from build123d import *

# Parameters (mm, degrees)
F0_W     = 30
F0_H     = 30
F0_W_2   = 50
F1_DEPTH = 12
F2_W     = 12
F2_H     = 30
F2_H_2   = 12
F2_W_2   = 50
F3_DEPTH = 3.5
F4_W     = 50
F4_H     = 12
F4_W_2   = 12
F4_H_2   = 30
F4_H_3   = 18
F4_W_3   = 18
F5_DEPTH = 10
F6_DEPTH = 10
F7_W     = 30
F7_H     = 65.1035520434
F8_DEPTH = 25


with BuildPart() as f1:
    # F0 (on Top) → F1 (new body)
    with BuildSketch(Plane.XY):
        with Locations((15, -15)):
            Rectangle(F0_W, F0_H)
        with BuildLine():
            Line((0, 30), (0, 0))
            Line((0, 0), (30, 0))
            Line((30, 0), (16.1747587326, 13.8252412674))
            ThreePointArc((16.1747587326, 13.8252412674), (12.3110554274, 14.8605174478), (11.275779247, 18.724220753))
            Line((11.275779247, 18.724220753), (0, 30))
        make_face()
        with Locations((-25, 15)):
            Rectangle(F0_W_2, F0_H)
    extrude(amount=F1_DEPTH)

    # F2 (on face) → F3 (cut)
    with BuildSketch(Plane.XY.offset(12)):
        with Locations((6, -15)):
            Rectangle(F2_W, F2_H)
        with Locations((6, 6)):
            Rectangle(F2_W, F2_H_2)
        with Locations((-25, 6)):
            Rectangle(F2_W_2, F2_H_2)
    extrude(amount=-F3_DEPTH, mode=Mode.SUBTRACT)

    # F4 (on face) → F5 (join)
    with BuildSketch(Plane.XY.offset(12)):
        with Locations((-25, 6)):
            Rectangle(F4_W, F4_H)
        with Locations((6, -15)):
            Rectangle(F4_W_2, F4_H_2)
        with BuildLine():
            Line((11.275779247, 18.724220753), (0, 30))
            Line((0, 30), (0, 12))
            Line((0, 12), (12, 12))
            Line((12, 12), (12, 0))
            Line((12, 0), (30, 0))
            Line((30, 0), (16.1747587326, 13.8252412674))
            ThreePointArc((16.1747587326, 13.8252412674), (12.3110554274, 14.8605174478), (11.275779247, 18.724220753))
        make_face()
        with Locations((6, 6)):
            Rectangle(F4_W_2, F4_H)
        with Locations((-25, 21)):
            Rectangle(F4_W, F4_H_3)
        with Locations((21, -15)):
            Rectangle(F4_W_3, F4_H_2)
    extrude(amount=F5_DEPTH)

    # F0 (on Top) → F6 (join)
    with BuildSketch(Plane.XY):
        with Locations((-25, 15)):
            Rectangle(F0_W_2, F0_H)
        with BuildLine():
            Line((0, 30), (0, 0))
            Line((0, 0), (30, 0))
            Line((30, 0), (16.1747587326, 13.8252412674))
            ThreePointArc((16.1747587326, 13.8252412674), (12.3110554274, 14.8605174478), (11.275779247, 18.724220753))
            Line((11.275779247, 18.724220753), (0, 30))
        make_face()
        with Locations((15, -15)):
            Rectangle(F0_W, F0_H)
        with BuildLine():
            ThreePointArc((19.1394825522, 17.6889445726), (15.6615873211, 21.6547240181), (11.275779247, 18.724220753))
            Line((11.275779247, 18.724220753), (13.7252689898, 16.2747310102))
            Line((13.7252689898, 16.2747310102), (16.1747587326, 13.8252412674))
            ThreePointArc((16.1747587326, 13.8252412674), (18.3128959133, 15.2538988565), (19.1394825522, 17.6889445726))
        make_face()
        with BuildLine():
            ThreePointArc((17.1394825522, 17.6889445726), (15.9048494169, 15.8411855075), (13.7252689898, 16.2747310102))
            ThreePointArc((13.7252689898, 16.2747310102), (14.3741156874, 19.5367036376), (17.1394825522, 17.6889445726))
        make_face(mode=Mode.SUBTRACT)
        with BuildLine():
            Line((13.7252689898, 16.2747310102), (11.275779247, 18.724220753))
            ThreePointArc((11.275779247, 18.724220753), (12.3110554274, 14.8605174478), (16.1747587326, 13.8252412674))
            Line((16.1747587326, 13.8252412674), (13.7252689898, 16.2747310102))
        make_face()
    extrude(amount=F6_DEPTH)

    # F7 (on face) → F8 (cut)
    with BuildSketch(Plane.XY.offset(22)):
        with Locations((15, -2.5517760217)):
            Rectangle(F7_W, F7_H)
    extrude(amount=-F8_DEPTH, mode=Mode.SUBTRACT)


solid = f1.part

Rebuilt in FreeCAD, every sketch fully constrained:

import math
import FreeCAD as App
import Part
import Sketcher
from FreeCAD import Vector
Q = App.Units.Quantity

doc = App.newDocument("Part")
params = doc.addObject("Spreadsheet::Sheet", "Params")
for row, (alias, value) in enumerate([
    ("sketch1_radius", "4 mm"),
    ("sketch1_width", "30 mm"),
    ("sketch1_width2", "50 mm"),
    ("pad1_length", "12 mm"),
    ("sketch2_width", "12 mm"),
    ("sketch2_width2", "62 mm"),
    ("sketch2_height", "42 mm"),
    ("pocket1_length", "3.5 mm"),
    ("sketch3_radius", "4 mm"),
    ("sketch3_width", "50 mm"),
    ("sketch3_width2", "30 mm"),
    ("pad2_length", "10 mm"),
    ("sketch4_radius", "4 mm"),
    ("sketch4_radius2", "2 mm"),
    ("sketch4_width", "50 mm"),
    ("sketch4_width2", "30 mm"),
    ("pad3_length", "10 mm"),
    ("sketch5_width", "30 mm"),
    ("pocket2_length", "25 mm"),
], start=1):
    params.set(f"A{row}", alias)
    params.set(f"B{row}", "=" + value)
    params.setAlias(f"B{row}", alias)

body = doc.addObject("PartDesign::Body", "Body")

# Sketch on XY plane
sketch1 = body.newObject("Sketcher::SketchObject", "Sketch")
sketch1.AttachmentSupport = (doc.getObject("XY_Plane"), [""])
sketch1.MapMode = "FlatFace"
sketch1.addGeometry([
    Part.LineSegment(Vector(0, -30, 0), Vector(30, -30, 0)),  # 0
    Part.LineSegment(Vector(30, -30, 0), Vector(30, 0, 0)),  # 1
    Part.LineSegment(Vector(30, 0, 0), Vector(16.2, 13.8, 0)),  # 2
    Part.ArcOfCircle(Part.Circle(Vector(15.1, 17.7, 0), Vector(0, 0, 1), 4), math.radians(165), math.radians(285)),  # 3
    Part.LineSegment(Vector(11.3, 18.7, 0), Vector(0, 30, 0)),  # 4
    Part.LineSegment(Vector(0, 30, 0), Vector(-50, 30, 0)),  # 5
    Part.LineSegment(Vector(-50, 30, 0), Vector(-50, 0, 0)),  # 6
    Part.LineSegment(Vector(-50, 0, 0), Vector(0, 0, 0)),  # 7
    Part.LineSegment(Vector(0, 0, 0), Vector(0, -30, 0)),  # 8
], False)
sketch1.addConstraint([
    Sketcher.Constraint("Coincident", 0, 2, 1, 1),
    Sketcher.Constraint("Coincident", 1, 2, 2, 1),
    Sketcher.Constraint("Coincident", 2, 2, 3, 2),
    Sketcher.Constraint("Coincident", 3, 1, 4, 1),
    Sketcher.Constraint("Coincident", 4, 2, 5, 1),
    Sketcher.Constraint("Coincident", 5, 2, 6, 1),
    Sketcher.Constraint("Coincident", 6, 2, 7, 1),
    Sketcher.Constraint("Coincident", 7, 2, 8, 1),
    Sketcher.Constraint("Coincident", 8, 2, 0, 1),
    Sketcher.Constraint("Horizontal", 0),
    Sketcher.Constraint("Vertical", 1),
    Sketcher.Constraint("Horizontal", 5),
    Sketcher.Constraint("Vertical", 6),
    Sketcher.Constraint("Horizontal", 7),
    Sketcher.Constraint("Vertical", 8),
    Sketcher.Constraint("Coincident", 7, 2, -1, 1),
    Sketcher.Constraint("Symmetric", 4, 2, 8, 2, -1, 1),
    Sketcher.Constraint("PointOnObject", 1, 2, -1),
    Sketcher.Constraint("Parallel", 2, 4),
    Sketcher.Constraint("Equal", 0, 1),
    Sketcher.Constraint("Radius", 3, 4.0),
    Sketcher.Constraint("DistanceX", 0, 1, 0, 2, 30.0),
    Sketcher.Constraint("DistanceX", 5, 2, 5, 1, 50.0),
    Sketcher.Constraint("Angle", 2, Q("135 deg")),
    Sketcher.Constraint("Distance", 4, 15.94636),
    Sketcher.Constraint("DistanceX", -1, 1, 2, 2, 16.174759),
])
sketch1.setExpression("Constraints[20]", "Params.sketch1_radius")
sketch1.setExpression("Constraints[21]", "Params.sketch1_width")
sketch1.setExpression("Constraints[22]", "Params.sketch1_width2")
pad1 = body.newObject("PartDesign::Pad", "Pad")
pad1.Profile = sketch1
pad1.setExpression("Length", "Params.pad1_length")

# Sketch on XY plane
sketch2 = body.newObject("Sketcher::SketchObject", "Sketch001")
sketch2.AttachmentSupport = (doc.getObject("XY_Plane"), [""])
sketch2.MapMode = "FlatFace"
sketch2.AttachmentOffset = App.Placement(Vector(0, 0, 12), App.Rotation())
sketch2.addGeometry([
    Part.LineSegment(Vector(0, -30, 0), Vector(12, -30, 0)),  # 0
    Part.LineSegment(Vector(12, -30, 0), Vector(12, 12, 0)),  # 1
    Part.LineSegment(Vector(12, 12, 0), Vector(-50, 12, 0)),  # 2
    Part.LineSegment(Vector(-50, 12, 0), Vector(-50, 0, 0)),  # 3
    Part.LineSegment(Vector(-50, 0, 0), Vector(0, 0, 0)),  # 4
    Part.LineSegment(Vector(0, 0, 0), Vector(0, -30, 0)),  # 5
], False)
sketch2.addConstraint([
    Sketcher.Constraint("Coincident", 0, 2, 1, 1),
    Sketcher.Constraint("Coincident", 1, 2, 2, 1),
    Sketcher.Constraint("Coincident", 2, 2, 3, 1),
    Sketcher.Constraint("Coincident", 3, 2, 4, 1),
    Sketcher.Constraint("Coincident", 4, 2, 5, 1),
    Sketcher.Constraint("Coincident", 5, 2, 0, 1),
    Sketcher.Constraint("Horizontal", 0),
    Sketcher.Constraint("Vertical", 1),
    Sketcher.Constraint("Horizontal", 2),
    Sketcher.Constraint("Vertical", 3),
    Sketcher.Constraint("Horizontal", 4),
    Sketcher.Constraint("Vertical", 5),
    Sketcher.Constraint("Coincident", 4, 2, -1, 1),
    Sketcher.Constraint("Equal", 0, 3),
    Sketcher.Constraint("DistanceX", 0, 1, 0, 2, 12.0),
    Sketcher.Constraint("DistanceX", 2, 2, 2, 1, 62.0),
    Sketcher.Constraint("DistanceY", 1, 1, 1, 2, 42.0),
])
sketch2.setExpression("Constraints[14]", "Params.sketch2_width")
sketch2.setExpression("Constraints[15]", "Params.sketch2_width2")
sketch2.setExpression("Constraints[16]", "Params.sketch2_height")
pocket1 = body.newObject("PartDesign::Pocket", "Pocket")
pocket1.Profile = sketch2
pocket1.setExpression("Length", "Params.pocket1_length")

# Sketch on XY plane
sketch3 = body.newObject("Sketcher::SketchObject", "Sketch002")
sketch3.AttachmentSupport = (doc.getObject("XY_Plane"), [""])
sketch3.MapMode = "FlatFace"
sketch3.AttachmentOffset = App.Placement(Vector(0, 0, 12), App.Rotation())
sketch3.addGeometry([
    Part.LineSegment(Vector(-50, 0, 0), Vector(0, 0, 0)),  # 0
    Part.LineSegment(Vector(0, 0, 0), Vector(0, -30, 0)),  # 1
    Part.LineSegment(Vector(0, -30, 0), Vector(30, -30, 0)),  # 2
    Part.LineSegment(Vector(30, -30, 0), Vector(30, 0, 0)),  # 3
    Part.LineSegment(Vector(30, 0, 0), Vector(16.2, 13.8, 0)),  # 4
    Part.ArcOfCircle(Part.Circle(Vector(15.1, 17.7, 0), Vector(0, 0, 1), 4), math.radians(165), math.radians(285)),  # 5
    Part.LineSegment(Vector(11.3, 18.7, 0), Vector(0, 30, 0)),  # 6
    Part.LineSegment(Vector(0, 30, 0), Vector(-50, 30, 0)),  # 7
    Part.LineSegment(Vector(-50, 30, 0), Vector(-50, 0, 0)),  # 8
], False)
sketch3.addConstraint([
    Sketcher.Constraint("Coincident", 0, 2, 1, 1),
    Sketcher.Constraint("Coincident", 1, 2, 2, 1),
    Sketcher.Constraint("Coincident", 2, 2, 3, 1),
    Sketcher.Constraint("Coincident", 3, 2, 4, 1),
    Sketcher.Constraint("Coincident", 4, 2, 5, 2),
    Sketcher.Constraint("Coincident", 5, 1, 6, 1),
    Sketcher.Constraint("Coincident", 6, 2, 7, 1),
    Sketcher.Constraint("Coincident", 7, 2, 8, 1),
    Sketcher.Constraint("Coincident", 8, 2, 0, 1),
    Sketcher.Constraint("Horizontal", 0),
    Sketcher.Constraint("Vertical", 1),
    Sketcher.Constraint("Horizontal", 2),
    Sketcher.Constraint("Vertical", 3),
    Sketcher.Constraint("Horizontal", 7),
    Sketcher.Constraint("Vertical", 8),
    Sketcher.Constraint("Coincident", 0, 2, -1, 1),
    Sketcher.Constraint("Symmetric", 1, 2, 6, 2, -1, 1),
    Sketcher.Constraint("PointOnObject", 3, 2, -1),
    Sketcher.Constraint("Parallel", 4, 6),
    Sketcher.Constraint("Equal", 2, 1),
    Sketcher.Constraint("Radius", 5, 4.0),
    Sketcher.Constraint("DistanceX", 0, 1, 0, 2, 50.0),
    Sketcher.Constraint("DistanceX", 2, 1, 2, 2, 30.0),
    Sketcher.Constraint("Angle", 4, Q("135 deg")),
    Sketcher.Constraint("Distance", 6, 15.94636),
    Sketcher.Constraint("DistanceX", -1, 1, 4, 2, 16.174759),
])
sketch3.setExpression("Constraints[20]", "Params.sketch3_radius")
sketch3.setExpression("Constraints[21]", "Params.sketch3_width")
sketch3.setExpression("Constraints[22]", "Params.sketch3_width2")
pad2 = body.newObject("PartDesign::Pad", "Pad001")
pad2.Profile = sketch3
pad2.setExpression("Length", "Params.pad2_length")

# Sketch on XY plane
sketch4 = body.newObject("Sketcher::SketchObject", "Sketch003")
sketch4.AttachmentSupport = (doc.getObject("XY_Plane"), [""])
sketch4.MapMode = "FlatFace"
sketch4.addGeometry([
    Part.LineSegment(Vector(-50, 30, 0), Vector(-50, 0, 0)),  # 0
    Part.LineSegment(Vector(-50, 0, 0), Vector(0, 0, 0)),  # 1
    Part.LineSegment(Vector(0, 0, 0), Vector(0, -30, 0)),  # 2
    Part.LineSegment(Vector(0, -30, 0), Vector(30, -30, 0)),  # 3
    Part.LineSegment(Vector(30, -30, 0), Vector(30, 0, 0)),  # 4
    Part.LineSegment(Vector(30, 0, 0), Vector(16.2, 13.8, 0)),  # 5
    Part.ArcOfCircle(Part.Circle(Vector(15.1, 17.7, 0), Vector(0, 0, 1), 4), math.radians(-75), math.radians(0)),  # 6
    Part.ArcOfCircle(Part.Circle(Vector(15.1, 17.7, 0), Vector(0, 0, 1), 4), math.radians(0), math.radians(165)),  # 7
    Part.LineSegment(Vector(11.3, 18.7, 0), Vector(0, 30, 0)),  # 8
    Part.LineSegment(Vector(0, 30, 0), Vector(-50, 30, 0)),  # 9
    Part.ArcOfCircle(Part.Circle(Vector(15.1, 17.7, 0), Vector(0, 0, 1), 2), math.radians(-135), math.radians(0)),  # 10
    Part.ArcOfCircle(Part.Circle(Vector(15.1, 17.7, 0), Vector(0, 0, 1), 2), math.radians(0), math.radians(225)),  # 11
], False)
sketch4.addConstraint([
    Sketcher.Constraint("Coincident", 0, 2, 1, 1),
    Sketcher.Constraint("Coincident", 1, 2, 2, 1),
    Sketcher.Constraint("Coincident", 2, 2, 3, 1),
    Sketcher.Constraint("Coincident", 3, 2, 4, 1),
    Sketcher.Constraint("Coincident", 4, 2, 5, 1),
    Sketcher.Constraint("Coincident", 5, 2, 6, 1),
    Sketcher.Constraint("Tangent", 6, 2, 7, 1),
    Sketcher.Constraint("Coincident", 7, 2, 8, 1),
    Sketcher.Constraint("Coincident", 8, 2, 9, 1),
    Sketcher.Constraint("Coincident", 9, 2, 0, 1),
    Sketcher.Constraint("Tangent", 10, 1, 11, 2),
    Sketcher.Constraint("Coincident", 11, 1, 10, 2),
    Sketcher.Constraint("Vertical", 0),
    Sketcher.Constraint("Horizontal", 1),
    Sketcher.Constraint("Vertical", 2),
    Sketcher.Constraint("Horizontal", 3),
    Sketcher.Constraint("Vertical", 4),
    Sketcher.Constraint("Horizontal", 9),
    Sketcher.Constraint("Coincident", 1, 2, -1, 1),
    Sketcher.Constraint("Coincident", 10, 3, 6, 3),
    Sketcher.Constraint("Equal", 6, 7),
    Sketcher.Constraint("Symmetric", 2, 2, 8, 2, -1, 1),
    Sketcher.Constraint("PointOnObject", 4, 2, -1),
    Sketcher.Constraint("Parallel", 5, 8),
    Sketcher.Constraint("Horizontal", 11, 3, 6, 2),
    Sketcher.Constraint("Horizontal", 6, 2, 11, 1),
    Sketcher.Constraint("Equal", 3, 0),
    Sketcher.Constraint("Radius", 6, 4.0),
    Sketcher.Constraint("Radius", 10, 2.0),
    Sketcher.Constraint("DistanceX", 1, 1, 1, 2, 50.0),
    Sketcher.Constraint("DistanceX", 3, 1, 3, 2, 30.0),
    Sketcher.Constraint("Angle", 5, Q("135 deg")),
    Sketcher.Constraint("Distance", 8, 15.94636),
    Sketcher.Constraint("DistanceX", -1, 1, 5, 2, 16.174759),
    Sketcher.Constraint("DistanceX", -1, 1, 10, 1, 13.725269),
])
sketch4.setExpression("Constraints[27]", "Params.sketch4_radius")
sketch4.setExpression("Constraints[28]", "Params.sketch4_radius2")
sketch4.setExpression("Constraints[29]", "Params.sketch4_width")
sketch4.setExpression("Constraints[30]", "Params.sketch4_width2")
pad3 = body.newObject("PartDesign::Pad", "Pad002")
pad3.Profile = sketch4
pad3.setExpression("Length", "Params.pad3_length")

# Sketch on XY plane
sketch5 = body.newObject("Sketcher::SketchObject", "Sketch004")
sketch5.AttachmentSupport = (doc.getObject("XY_Plane"), [""])
sketch5.MapMode = "FlatFace"
sketch5.AttachmentOffset = App.Placement(Vector(0, 0, 22), App.Rotation())
sketch5.addGeometry([
    Part.LineSegment(Vector(0, 30, 0), Vector(0, -35, 0)),
    Part.LineSegment(Vector(0, -35, 0), Vector(30, -35, 0)),
    Part.LineSegment(Vector(30, -35, 0), Vector(30, 30, 0)),
    Part.LineSegment(Vector(30, 30, 0), Vector(0, 30, 0)),
], False)
sketch5.addConstraint([
    Sketcher.Constraint("Coincident", 0, 2, 1, 1),
    Sketcher.Constraint("Coincident", 1, 2, 2, 1),
    Sketcher.Constraint("Coincident", 2, 2, 3, 1),
    Sketcher.Constraint("Coincident", 3, 2, 0, 1),
    Sketcher.Constraint("Vertical", 0),
    Sketcher.Constraint("Horizontal", 1),
    Sketcher.Constraint("Vertical", 2),
    Sketcher.Constraint("Horizontal", 3),
    Sketcher.Constraint("PointOnObject", 0, 2, -2),
    Sketcher.Constraint("DistanceX", 1, 1, 1, 2, 30.0),
    Sketcher.Constraint("DistanceY", -1, 1, 2, 2, 30.0),
    Sketcher.Constraint("DistanceY", 0, 2, 0, 1, 65.103552),
])
sketch5.setExpression("Constraints[9]", "Params.sketch5_width")
pocket2 = body.newObject("PartDesign::Pocket", "Pocket001")
pocket2.Profile = sketch5
pocket2.setExpression("Length", "Params.pocket2_length")

doc.recompute()
